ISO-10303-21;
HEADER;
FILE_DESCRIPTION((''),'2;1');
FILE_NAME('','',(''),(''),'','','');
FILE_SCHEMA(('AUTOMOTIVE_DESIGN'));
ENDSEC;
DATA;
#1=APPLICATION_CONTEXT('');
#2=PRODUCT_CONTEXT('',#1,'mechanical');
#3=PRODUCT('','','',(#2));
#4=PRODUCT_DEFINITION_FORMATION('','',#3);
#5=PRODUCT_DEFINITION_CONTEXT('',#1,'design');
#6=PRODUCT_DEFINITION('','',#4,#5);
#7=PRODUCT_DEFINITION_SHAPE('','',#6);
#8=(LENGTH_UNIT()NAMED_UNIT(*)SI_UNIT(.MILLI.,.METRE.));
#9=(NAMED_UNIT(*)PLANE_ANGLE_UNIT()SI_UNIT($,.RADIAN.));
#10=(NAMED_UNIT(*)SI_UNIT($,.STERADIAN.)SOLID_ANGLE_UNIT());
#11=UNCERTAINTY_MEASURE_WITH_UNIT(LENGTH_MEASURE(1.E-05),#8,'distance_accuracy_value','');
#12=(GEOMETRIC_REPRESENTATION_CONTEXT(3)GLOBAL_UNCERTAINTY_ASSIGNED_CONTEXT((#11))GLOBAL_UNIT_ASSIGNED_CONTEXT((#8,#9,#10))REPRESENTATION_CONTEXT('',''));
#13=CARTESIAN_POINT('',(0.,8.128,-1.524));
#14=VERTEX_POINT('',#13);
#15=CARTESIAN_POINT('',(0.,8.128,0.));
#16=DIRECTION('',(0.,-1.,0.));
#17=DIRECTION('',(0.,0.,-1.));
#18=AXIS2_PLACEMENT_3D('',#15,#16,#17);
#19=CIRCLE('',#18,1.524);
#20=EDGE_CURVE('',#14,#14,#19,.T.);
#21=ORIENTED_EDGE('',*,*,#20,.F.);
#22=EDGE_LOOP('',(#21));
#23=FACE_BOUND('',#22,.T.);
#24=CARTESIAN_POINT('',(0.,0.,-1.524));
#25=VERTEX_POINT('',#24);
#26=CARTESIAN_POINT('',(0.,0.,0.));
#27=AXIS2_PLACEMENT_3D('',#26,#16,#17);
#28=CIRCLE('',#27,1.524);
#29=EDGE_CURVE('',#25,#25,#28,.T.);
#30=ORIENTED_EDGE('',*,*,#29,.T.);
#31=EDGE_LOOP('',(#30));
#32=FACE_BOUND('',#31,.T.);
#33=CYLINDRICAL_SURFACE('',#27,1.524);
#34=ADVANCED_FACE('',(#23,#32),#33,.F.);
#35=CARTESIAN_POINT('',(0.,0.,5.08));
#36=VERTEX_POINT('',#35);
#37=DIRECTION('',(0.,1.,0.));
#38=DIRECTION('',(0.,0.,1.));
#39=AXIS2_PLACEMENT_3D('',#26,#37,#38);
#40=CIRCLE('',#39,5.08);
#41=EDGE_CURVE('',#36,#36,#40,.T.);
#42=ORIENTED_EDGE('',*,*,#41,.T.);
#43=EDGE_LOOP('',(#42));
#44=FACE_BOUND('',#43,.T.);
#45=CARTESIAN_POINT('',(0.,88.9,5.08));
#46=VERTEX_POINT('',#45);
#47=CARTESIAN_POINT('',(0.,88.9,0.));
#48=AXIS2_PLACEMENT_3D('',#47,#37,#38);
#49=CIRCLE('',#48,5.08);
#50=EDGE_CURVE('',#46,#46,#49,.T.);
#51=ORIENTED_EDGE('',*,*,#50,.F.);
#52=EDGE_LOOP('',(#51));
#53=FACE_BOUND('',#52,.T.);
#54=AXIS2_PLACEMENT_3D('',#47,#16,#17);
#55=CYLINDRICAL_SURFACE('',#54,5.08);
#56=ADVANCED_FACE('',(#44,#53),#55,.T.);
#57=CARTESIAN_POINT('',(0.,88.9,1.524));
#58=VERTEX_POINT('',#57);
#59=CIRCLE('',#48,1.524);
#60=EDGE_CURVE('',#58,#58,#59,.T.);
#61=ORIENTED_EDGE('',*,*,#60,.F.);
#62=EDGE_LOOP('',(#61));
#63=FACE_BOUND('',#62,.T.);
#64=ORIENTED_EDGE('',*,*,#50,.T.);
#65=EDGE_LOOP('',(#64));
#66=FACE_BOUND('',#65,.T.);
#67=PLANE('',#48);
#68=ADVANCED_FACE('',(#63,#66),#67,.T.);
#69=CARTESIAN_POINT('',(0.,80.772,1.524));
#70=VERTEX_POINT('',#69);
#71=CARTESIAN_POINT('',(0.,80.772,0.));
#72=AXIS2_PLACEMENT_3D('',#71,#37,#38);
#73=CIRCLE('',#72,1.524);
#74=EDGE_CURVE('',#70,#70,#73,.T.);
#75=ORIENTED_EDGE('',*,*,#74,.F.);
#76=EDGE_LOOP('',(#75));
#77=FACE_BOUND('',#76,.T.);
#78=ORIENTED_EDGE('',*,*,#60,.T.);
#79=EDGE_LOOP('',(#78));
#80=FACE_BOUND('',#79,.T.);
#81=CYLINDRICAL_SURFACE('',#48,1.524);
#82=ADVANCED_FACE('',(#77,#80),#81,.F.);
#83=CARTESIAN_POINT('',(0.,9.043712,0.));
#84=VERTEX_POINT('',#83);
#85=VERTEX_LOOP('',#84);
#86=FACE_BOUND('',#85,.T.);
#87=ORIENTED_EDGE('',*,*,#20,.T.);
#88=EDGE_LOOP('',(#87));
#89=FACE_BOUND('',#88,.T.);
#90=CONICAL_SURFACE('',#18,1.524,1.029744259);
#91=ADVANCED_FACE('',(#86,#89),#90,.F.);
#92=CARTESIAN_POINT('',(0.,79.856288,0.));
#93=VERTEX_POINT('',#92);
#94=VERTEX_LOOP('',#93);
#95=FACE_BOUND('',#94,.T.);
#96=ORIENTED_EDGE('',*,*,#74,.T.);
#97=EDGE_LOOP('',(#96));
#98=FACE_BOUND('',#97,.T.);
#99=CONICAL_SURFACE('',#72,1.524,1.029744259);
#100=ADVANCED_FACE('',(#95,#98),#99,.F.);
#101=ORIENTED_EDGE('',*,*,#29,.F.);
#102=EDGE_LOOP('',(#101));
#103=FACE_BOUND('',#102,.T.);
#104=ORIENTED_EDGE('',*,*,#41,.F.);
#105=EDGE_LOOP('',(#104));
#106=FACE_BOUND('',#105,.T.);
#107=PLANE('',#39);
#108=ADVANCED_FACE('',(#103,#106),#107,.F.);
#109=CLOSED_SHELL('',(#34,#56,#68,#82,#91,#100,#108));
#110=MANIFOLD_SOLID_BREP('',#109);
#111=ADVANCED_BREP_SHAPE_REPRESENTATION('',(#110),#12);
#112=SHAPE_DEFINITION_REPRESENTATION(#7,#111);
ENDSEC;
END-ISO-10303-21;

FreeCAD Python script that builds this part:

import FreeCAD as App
import Part
import Sketcher
Q = App.Units.Quantity

doc = App.newDocument("Part")
params = doc.addObject("Spreadsheet::Sheet", "Params")
for row, (alias, value) in enumerate([
    ("sketch1_diameter", "0.4 in"),
    ("pad1_length", "3.5 in"),
    ("sketch2_diameter", "0.12 in"),
    ("hole_diameter", "0.12 in"),
    ("hole_depth", "0.32 in"),
    ("sketch3_diameter", "0.12 in"),
    ("hole2_diameter", "0.12 in"),
    ("hole2_depth", "0.32 in"),
], start=1):
    params.set(f"A{row}", alias)
    params.set(f"B{row}", "=" + value)
    params.setAlias(f"B{row}", alias)

body = doc.addObject("PartDesign::Body", "Body")

# Sketch on XZ plane
sketch1 = body.newObject("Sketcher::SketchObject", "Sketch")
sketch1.AttachmentSupport = (doc.getObject("XZ_Plane"), [""])
sketch1.MapMode = "FlatFace"
sketch1.addGeometry(Part.Circle(App.Vector(0, 0, 0), App.Vector(0, 0, 1), 5), False)
sketch1.addConstraint([
    Sketcher.Constraint("Coincident", 0, 3, -1, 1),
    Sketcher.Constraint("Diameter", 0, Q("0.4 in")),
])
sketch1.setExpression("Constraints[1]", "Params.sketch1_diameter")
pad1 = body.newObject("PartDesign::Pad", "Pad")
pad1.Profile = sketch1
pad1.setExpression("Length", "Params.pad1_length")
pad1.Reversed = True

# Sketch on XZ plane
sketch2 = body.newObject("Sketcher::SketchObject", "Sketch001")
sketch2.AttachmentSupport = (doc.getObject("XZ_Plane"), [""])
sketch2.MapMode = "FlatFace"
sketch2.AttachmentOffset = App.Placement(App.Vector(0, 0, -3.5 * 25.4), App.Rotation())
sketch2.addGeometry(Part.Circle(App.Vector(0, 0, 0), App.Vector(0, 0, 1), 1.5), False)
sketch2.addConstraint([
    Sketcher.Constraint("Coincident", 0, 3, -1, 1),
    Sketcher.Constraint("Diameter", 0, Q("0.12 in")),
])
sketch2.setExpression("Constraints[1]", "Params.sketch2_diameter")
doc.recompute()
hole = body.newObject("PartDesign::Hole", "Hole")
hole.Profile = sketch2
hole.ThreadType = "None"
hole.setExpression("Diameter", "Params.hole_diameter")
hole.DepthType = "Dimension"
hole.setExpression("Depth", "Params.hole_depth")
hole.DrillPoint = "Angled"
hole.DrillPointAngle = 118
hole.Reversed = True

# Sketch on XZ plane
sketch3 = body.newObject("Sketcher::SketchObject", "Sketch002")
sketch3.AttachmentSupport = (doc.getObject("XZ_Plane"), [""])
sketch3.MapMode = "FlatFace"
sketch3.addGeometry(Part.Circle(App.Vector(0, 0, 0), App.Vector(0, 0, 1), 1.5), False)
sketch3.addConstraint([
    Sketcher.Constraint("Coincident", 0, 3, -1, 1),
    Sketcher.Constraint("Diameter", 0, Q("0.12 in")),
])
sketch3.setExpression("Constraints[1]", "Params.sketch3_diameter")
doc.recompute()
hole2 = body.newObject("PartDesign::Hole", "Hole001")
hole2.Profile = sketch3
hole2.ThreadType = "None"
hole2.setExpression("Diameter", "Params.hole2_diameter")
hole2.DepthType = "Dimension"
hole2.setExpression("Depth", "Params.hole2_depth")
hole2.DrillPoint = "Angled"
hole2.DrillPointAngle = 118

doc.recompute()
